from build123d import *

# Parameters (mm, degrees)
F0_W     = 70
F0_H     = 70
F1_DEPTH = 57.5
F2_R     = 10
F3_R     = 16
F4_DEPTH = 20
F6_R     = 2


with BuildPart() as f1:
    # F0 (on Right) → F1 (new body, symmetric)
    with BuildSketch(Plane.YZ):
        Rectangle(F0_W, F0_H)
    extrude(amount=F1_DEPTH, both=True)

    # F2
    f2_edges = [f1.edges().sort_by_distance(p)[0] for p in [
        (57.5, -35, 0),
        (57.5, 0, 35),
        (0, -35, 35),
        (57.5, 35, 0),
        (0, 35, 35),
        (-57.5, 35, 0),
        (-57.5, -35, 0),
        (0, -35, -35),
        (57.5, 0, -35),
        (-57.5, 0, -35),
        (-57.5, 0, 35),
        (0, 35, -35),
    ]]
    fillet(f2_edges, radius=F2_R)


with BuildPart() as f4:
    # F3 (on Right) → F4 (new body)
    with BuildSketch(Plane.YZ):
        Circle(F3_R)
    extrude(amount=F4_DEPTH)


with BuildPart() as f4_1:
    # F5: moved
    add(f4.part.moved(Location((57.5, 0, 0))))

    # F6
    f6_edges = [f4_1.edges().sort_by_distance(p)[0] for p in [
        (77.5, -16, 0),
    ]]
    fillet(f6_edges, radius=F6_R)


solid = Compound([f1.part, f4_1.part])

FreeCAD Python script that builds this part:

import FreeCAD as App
import Part
import Sketcher


def edges_at(feature, points):
    """Names of the edges that pass closest to the given points."""
    edges = feature.Shape.Edges
    near = lambda p: min(range(len(edges)), key=lambda i: edges[i].distToShape(Part.Vertex(*p))[0])
    return sorted({f"Edge{near(p) + 1}" for p in points})

doc = App.newDocument("Part")
body = doc.addObject("PartDesign::Body", "Body")

# Sketch on YZ plane
sketch1 = doc.addObject("Sketcher::SketchObject", "Sketch")
body.addObject(sketch1)
sketch1.AttachmentSupport = (doc.YZ_Plane, [""])
sketch1.MapMode = "FlatFace"
sketch1.addGeometry(Part.LineSegment(App.Vector(-35, 35, 0), App.Vector(-35, -35, 0)), False)
sketch1.addGeometry(Part.LineSegment(App.Vector(-35, -35, 0), App.Vector(35, -35, 0)), False)
sketch1.addGeometry(Part.LineSegment(App.Vector(35, -35, 0), App.Vector(35, 35, 0)), False)
sketch1.addGeometry(Part.LineSegment(App.Vector(35, 35, 0), App.Vector(-35, 35, 0)), False)
sketch1.addConstraint(Sketcher.Constraint("Coincident", 0, 2, 1, 1))
sketch1.addConstraint(Sketcher.Constraint("Coincident", 1, 2, 2, 1))
sketch1.addConstraint(Sketcher.Constraint("Coincident", 2, 2, 3, 1))
sketch1.addConstraint(Sketcher.Constraint("Coincident", 3, 2, 0, 1))
sketch1.addConstraint(Sketcher.Constraint("Vertical", 0))
sketch1.addConstraint(Sketcher.Constraint("Horizontal", 1))
sketch1.addConstraint(Sketcher.Constraint("Vertical", 2))
sketch1.addConstraint(Sketcher.Constraint("Horizontal", 3))
sketch1.addConstraint(Sketcher.Constraint("Symmetric", 0, 2, 2, 2, -1, 1))
sketch1.addConstraint(Sketcher.Constraint("Equal", 3, 0))
sketch1.addConstraint(Sketcher.Constraint("DistanceX", 1, 1, 1, 2, 70.0))
pad1 = doc.addObject("PartDesign::Pad", "Pad")
body.addObject(pad1)
pad1.Profile = sketch1
pad1.Length = 115
pad1.Midplane = True
doc.recompute()

fillet = doc.addObject("PartDesign::Fillet", "Fillet")
body.addObject(fillet)
fillet.Base = (pad1, ["Edge1"])
fillet.UseAllEdges = True
fillet.Radius = 10
body2 = doc.addObject("PartDesign::Body", "Body001")

# Sketch on YZ plane
sketch2 = doc.addObject("Sketcher::SketchObject", "Sketch001")
body2.addObject(sketch2)
sketch2.AttachmentSupport = (doc.getObject("YZ_Plane001"), [""])
sketch2.MapMode = "FlatFace"
sketch2.addGeometry(Part.Circle(App.Vector(0, 0, 0), App.Vector(0, 0, 1), 16), False)
sketch2.addConstraint(Sketcher.Constraint("Coincident", 0, 3, -1, 1))
sketch2.addConstraint(Sketcher.Constraint("Diameter", 0, 32.0))
pad2 = doc.addObject("PartDesign::Pad", "Pad001")
body2.addObject(pad2)
pad2.Profile = sketch2
pad2.Length = 20
body3 = doc.addObject("PartDesign::Body", "Body002")
doc.recompute()

body2.Placement = App.Placement(App.Vector(57.5, 0, 0), App.Rotation(App.Vector(0, 0, 1), 0))
boolean = doc.addObject("PartDesign::Boolean", "Boolean")
body3.addObject(boolean)
boolean.Type = "Fuse"
boolean.addObjects([body2])
doc.recompute()

fillet2 = doc.addObject("PartDesign::Fillet", "Fillet001")
body3.addObject(fillet2)
fillet2.Base = (boolean, edges_at(boolean, [(77.5, -16, 0)]))
fillet2.Radius = 2

doc.recompute()
